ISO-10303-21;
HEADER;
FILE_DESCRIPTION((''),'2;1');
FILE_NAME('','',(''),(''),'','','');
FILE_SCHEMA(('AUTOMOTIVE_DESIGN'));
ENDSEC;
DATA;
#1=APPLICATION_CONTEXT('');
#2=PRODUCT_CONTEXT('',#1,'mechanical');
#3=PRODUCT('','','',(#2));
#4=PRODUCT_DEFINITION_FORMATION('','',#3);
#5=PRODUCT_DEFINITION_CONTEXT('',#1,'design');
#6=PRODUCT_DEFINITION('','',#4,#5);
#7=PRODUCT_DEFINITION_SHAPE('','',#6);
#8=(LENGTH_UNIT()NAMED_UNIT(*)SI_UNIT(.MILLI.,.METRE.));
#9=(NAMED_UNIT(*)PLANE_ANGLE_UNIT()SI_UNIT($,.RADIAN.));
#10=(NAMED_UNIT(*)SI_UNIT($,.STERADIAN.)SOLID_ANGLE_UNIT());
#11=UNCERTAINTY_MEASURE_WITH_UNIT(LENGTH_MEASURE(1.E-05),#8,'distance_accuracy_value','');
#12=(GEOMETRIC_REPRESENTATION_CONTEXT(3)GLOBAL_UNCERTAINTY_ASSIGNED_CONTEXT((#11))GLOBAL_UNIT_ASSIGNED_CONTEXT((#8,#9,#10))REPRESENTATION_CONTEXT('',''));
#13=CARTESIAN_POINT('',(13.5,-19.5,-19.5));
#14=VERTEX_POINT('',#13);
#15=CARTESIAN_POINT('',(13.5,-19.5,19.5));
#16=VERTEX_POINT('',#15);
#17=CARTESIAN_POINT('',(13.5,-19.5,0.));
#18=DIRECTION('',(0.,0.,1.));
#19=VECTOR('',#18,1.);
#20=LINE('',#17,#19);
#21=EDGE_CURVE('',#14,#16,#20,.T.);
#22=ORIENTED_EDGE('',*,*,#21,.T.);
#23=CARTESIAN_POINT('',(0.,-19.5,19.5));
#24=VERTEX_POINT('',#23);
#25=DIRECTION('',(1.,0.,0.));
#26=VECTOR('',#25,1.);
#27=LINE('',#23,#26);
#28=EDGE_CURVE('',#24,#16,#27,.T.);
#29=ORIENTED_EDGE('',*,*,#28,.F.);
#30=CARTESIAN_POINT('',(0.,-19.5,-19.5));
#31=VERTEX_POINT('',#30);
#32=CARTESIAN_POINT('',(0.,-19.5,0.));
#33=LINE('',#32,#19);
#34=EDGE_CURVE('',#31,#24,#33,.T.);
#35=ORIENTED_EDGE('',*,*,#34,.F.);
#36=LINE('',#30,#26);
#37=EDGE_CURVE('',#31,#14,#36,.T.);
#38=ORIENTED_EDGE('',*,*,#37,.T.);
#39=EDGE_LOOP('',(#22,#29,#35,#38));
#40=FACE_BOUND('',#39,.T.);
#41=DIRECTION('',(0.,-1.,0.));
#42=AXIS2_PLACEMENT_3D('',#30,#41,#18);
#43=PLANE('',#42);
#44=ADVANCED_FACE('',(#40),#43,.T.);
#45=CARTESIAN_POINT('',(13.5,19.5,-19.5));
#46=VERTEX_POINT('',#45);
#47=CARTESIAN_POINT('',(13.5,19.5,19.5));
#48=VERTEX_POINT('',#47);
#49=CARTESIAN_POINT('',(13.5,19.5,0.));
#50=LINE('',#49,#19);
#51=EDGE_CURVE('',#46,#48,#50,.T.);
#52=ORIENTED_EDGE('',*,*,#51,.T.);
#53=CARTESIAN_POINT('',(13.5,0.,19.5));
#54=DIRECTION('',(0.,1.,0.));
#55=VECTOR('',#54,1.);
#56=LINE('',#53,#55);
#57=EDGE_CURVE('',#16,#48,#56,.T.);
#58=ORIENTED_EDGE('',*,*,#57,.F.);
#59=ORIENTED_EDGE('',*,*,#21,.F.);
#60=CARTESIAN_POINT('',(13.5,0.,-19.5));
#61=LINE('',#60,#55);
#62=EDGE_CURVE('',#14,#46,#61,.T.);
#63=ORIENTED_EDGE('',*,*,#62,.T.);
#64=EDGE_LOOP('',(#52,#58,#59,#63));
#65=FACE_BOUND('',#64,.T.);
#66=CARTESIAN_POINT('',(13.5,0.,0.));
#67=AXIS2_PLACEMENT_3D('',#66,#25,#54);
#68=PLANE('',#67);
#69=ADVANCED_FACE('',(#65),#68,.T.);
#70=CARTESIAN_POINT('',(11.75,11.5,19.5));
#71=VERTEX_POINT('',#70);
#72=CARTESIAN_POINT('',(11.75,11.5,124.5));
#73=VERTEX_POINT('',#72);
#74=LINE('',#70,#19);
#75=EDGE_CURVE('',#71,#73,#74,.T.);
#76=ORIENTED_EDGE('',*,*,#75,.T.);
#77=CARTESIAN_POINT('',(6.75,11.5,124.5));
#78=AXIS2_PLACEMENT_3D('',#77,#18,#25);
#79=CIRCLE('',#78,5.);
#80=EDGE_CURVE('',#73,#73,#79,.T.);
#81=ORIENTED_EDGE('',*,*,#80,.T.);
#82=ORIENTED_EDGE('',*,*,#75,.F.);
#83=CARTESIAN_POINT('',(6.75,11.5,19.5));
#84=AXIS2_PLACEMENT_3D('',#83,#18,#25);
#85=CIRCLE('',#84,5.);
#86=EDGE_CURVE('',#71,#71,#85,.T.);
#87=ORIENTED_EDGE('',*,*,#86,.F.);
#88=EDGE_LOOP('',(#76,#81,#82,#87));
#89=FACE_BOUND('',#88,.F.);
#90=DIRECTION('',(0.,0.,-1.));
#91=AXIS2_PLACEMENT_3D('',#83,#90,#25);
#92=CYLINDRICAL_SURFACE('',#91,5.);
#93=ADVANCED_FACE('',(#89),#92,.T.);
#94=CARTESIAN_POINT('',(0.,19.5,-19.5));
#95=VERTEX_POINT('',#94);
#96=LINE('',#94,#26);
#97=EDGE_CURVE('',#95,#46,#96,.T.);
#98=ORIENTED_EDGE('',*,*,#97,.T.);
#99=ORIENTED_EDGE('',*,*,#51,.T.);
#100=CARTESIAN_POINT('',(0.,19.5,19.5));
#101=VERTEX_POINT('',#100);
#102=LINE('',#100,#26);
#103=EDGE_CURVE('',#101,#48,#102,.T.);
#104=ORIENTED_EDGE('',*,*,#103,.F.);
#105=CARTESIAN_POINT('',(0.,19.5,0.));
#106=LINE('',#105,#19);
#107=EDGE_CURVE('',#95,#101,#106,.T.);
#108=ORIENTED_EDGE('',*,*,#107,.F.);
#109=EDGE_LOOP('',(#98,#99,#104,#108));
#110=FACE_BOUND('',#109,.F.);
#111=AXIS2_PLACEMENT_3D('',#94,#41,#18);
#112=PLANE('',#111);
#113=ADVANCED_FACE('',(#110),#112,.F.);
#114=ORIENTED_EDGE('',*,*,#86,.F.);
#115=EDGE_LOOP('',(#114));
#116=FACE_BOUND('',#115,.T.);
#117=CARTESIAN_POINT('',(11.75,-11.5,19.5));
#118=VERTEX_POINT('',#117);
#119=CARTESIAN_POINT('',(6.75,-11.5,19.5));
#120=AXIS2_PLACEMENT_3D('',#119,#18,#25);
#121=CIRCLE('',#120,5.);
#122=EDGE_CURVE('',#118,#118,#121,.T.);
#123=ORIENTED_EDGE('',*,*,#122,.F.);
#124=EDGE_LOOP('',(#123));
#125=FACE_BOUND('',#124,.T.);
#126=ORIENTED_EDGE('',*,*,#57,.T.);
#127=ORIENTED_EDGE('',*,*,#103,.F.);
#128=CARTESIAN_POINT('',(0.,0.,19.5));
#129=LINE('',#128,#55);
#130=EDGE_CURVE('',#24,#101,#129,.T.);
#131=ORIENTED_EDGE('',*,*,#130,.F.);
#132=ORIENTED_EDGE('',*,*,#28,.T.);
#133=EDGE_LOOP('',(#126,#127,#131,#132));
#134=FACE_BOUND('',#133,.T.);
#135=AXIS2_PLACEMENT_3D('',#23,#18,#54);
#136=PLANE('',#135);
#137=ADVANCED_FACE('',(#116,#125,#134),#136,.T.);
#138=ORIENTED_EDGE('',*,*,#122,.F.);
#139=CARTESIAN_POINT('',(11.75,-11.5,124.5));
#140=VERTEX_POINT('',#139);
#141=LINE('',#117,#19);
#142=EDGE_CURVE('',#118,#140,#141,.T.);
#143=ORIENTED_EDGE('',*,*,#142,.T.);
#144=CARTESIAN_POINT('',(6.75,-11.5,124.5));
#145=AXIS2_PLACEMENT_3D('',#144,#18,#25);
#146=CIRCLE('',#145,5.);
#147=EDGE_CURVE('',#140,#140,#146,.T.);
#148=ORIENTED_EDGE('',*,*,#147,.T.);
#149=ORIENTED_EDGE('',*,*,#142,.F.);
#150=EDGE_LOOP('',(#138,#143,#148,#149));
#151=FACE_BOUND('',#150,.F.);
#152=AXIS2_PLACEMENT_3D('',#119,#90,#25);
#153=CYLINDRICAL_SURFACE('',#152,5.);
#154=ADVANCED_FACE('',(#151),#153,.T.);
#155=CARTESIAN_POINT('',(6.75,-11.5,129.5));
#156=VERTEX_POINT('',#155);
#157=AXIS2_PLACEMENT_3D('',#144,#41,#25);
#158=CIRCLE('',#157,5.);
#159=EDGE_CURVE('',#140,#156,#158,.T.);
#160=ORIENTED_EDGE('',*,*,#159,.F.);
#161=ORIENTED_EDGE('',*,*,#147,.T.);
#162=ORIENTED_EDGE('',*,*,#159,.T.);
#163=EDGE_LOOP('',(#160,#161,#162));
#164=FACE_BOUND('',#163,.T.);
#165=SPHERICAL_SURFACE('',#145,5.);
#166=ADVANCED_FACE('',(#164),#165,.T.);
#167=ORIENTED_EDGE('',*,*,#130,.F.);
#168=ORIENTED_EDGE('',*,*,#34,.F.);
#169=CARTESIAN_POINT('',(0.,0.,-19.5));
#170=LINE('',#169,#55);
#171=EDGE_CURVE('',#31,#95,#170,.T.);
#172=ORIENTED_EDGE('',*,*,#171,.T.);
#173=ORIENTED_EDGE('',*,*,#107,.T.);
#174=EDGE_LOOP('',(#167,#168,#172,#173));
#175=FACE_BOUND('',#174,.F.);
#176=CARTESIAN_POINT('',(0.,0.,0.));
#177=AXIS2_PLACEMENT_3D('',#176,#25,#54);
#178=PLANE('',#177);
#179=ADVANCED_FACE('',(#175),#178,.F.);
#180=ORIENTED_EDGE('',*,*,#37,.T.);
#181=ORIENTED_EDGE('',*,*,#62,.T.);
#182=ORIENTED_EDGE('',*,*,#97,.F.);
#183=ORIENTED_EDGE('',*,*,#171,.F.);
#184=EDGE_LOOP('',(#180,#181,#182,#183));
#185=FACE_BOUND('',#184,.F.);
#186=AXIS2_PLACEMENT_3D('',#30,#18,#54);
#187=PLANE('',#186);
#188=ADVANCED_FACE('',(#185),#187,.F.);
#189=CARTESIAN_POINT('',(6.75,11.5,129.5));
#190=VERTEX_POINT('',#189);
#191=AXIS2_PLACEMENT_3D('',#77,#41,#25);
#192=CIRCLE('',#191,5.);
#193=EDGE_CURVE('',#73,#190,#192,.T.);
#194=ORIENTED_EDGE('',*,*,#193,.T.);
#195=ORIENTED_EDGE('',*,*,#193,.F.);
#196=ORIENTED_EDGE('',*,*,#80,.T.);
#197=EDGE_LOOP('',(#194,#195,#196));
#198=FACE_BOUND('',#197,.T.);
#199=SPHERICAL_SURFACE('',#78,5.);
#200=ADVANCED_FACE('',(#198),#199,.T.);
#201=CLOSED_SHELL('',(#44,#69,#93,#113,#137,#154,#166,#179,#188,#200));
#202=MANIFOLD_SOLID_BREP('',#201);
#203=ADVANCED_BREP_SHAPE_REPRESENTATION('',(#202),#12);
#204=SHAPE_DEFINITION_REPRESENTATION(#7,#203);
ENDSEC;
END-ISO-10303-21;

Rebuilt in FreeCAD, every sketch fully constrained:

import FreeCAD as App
import Part
import Sketcher

V = App.Vector
Q = App.Units.Quantity


def edges_at(feature, points):
    """Names of the edges that pass closest to the given points."""
    edges = feature.Shape.Edges
    near = lambda p: min(range(len(edges)), key=lambda i: edges[i].distToShape(Part.Vertex(*p))[0])
    return sorted({f"Edge{near(p) + 1}" for p in points})

doc = App.newDocument("Part")
params = doc.addObject("Spreadsheet::Sheet", "Params")
for row, (alias, value) in enumerate([
    ("sketch1_width", "39 mm"),
    ("pad1_length", "13.5 mm"),
    ("sketch2_diameter", "10 mm"),
    ("pad2_length", "110 mm"),
    ("fillet_radius", "5 mm"),
], start=1):
    params.set(f"A{row}", alias)
    params.set(f"B{row}", "=" + value)
    params.setAlias(f"B{row}", alias)

body = doc.addObject("PartDesign::Body", "Body")

# Sketch on YZ plane
sketch1 = body.newObject("Sketcher::SketchObject", "Sketch")
sketch1.AttachmentSupport = (doc.getObject("YZ_Plane"), [""])
sketch1.MapMode = "FlatFace"
sketch1.addGeometry([
    Part.LineSegment(V(-20, 20, 0), V(-20, -20, 0)),
    Part.LineSegment(V(-20, -20, 0), V(20, -20, 0)),
    Part.LineSegment(V(20, -20, 0), V(20, 20, 0)),
    Part.LineSegment(V(20, 20, 0), V(-20, 20, 0)),
], False)
sketch1.addConstraint([
    Sketcher.Constraint("Coincident", 0, 2, 1, 1),
    Sketcher.Constraint("Coincident", 1, 2, 2, 1),
    Sketcher.Constraint("Coincident", 2, 2, 3, 1),
    Sketcher.Constraint("Coincident", 3, 2, 0, 1),
    Sketcher.Constraint("Vertical", 0),
    Sketcher.Constraint("Horizontal", 1),
    Sketcher.Constraint("Vertical", 2),
    Sketcher.Constraint("Horizontal", 3),
    Sketcher.Constraint("Symmetric", 0, 2, 2, 2, -1, 1),
    Sketcher.Constraint("Equal", 3, 0),
    Sketcher.Constraint("DistanceX", 1, 1, 1, 2, Q("39 mm")),
])
sketch1.setExpression("Constraints[10]", "Params.sketch1_width")
pad1 = body.newObject("PartDesign::Pad", "Pad")
pad1.Profile = sketch1
pad1.setExpression("Length", "Params.pad1_length")

# Sketch on XY plane
sketch2 = body.newObject("Sketcher::SketchObject", "Sketch001")
sketch2.AttachmentSupport = (doc.getObject("XY_Plane"), [""])
sketch2.MapMode = "FlatFace"
sketch2.AttachmentOffset = App.Placement(V(0, 0, 19.5), App.Rotation())
sketch2.addGeometry([
    Part.Circle(V(7, 12, 0), V(0, 0, 1), 5),
    Part.Circle(V(7, -12, 0), V(0, 0, 1), 5),
], False)
sketch2.addConstraint([
    Sketcher.Constraint("Equal", 0, 1),
    Sketcher.Constraint("Symmetric", 0, 3, 1, 3, -1),
    Sketcher.Constraint("Diameter", 0, Q("10 mm")),
    Sketcher.Constraint("DistanceY", 1, 3, 0, 3, Q("23 mm")),
    Sketcher.Constraint("DistanceX", -1, 1, 0, 3, Q("6.75 mm")),
])
sketch2.setExpression("Constraints[2]", "Params.sketch2_diameter")
pad2 = body.newObject("PartDesign::Pad", "Pad001")
pad2.Profile = sketch2
pad2.setExpression("Length", "Params.pad2_length")
doc.recompute()

fillet = body.newObject("PartDesign::Fillet", "Fillet")
fillet.Base = (pad2, edges_at(pad2, [(1.75, 11.5, 129.5), (1.75, -11.5, 129.5)]))
fillet.setExpression("Radius", "Params.fillet_radius")

doc.recompute()
